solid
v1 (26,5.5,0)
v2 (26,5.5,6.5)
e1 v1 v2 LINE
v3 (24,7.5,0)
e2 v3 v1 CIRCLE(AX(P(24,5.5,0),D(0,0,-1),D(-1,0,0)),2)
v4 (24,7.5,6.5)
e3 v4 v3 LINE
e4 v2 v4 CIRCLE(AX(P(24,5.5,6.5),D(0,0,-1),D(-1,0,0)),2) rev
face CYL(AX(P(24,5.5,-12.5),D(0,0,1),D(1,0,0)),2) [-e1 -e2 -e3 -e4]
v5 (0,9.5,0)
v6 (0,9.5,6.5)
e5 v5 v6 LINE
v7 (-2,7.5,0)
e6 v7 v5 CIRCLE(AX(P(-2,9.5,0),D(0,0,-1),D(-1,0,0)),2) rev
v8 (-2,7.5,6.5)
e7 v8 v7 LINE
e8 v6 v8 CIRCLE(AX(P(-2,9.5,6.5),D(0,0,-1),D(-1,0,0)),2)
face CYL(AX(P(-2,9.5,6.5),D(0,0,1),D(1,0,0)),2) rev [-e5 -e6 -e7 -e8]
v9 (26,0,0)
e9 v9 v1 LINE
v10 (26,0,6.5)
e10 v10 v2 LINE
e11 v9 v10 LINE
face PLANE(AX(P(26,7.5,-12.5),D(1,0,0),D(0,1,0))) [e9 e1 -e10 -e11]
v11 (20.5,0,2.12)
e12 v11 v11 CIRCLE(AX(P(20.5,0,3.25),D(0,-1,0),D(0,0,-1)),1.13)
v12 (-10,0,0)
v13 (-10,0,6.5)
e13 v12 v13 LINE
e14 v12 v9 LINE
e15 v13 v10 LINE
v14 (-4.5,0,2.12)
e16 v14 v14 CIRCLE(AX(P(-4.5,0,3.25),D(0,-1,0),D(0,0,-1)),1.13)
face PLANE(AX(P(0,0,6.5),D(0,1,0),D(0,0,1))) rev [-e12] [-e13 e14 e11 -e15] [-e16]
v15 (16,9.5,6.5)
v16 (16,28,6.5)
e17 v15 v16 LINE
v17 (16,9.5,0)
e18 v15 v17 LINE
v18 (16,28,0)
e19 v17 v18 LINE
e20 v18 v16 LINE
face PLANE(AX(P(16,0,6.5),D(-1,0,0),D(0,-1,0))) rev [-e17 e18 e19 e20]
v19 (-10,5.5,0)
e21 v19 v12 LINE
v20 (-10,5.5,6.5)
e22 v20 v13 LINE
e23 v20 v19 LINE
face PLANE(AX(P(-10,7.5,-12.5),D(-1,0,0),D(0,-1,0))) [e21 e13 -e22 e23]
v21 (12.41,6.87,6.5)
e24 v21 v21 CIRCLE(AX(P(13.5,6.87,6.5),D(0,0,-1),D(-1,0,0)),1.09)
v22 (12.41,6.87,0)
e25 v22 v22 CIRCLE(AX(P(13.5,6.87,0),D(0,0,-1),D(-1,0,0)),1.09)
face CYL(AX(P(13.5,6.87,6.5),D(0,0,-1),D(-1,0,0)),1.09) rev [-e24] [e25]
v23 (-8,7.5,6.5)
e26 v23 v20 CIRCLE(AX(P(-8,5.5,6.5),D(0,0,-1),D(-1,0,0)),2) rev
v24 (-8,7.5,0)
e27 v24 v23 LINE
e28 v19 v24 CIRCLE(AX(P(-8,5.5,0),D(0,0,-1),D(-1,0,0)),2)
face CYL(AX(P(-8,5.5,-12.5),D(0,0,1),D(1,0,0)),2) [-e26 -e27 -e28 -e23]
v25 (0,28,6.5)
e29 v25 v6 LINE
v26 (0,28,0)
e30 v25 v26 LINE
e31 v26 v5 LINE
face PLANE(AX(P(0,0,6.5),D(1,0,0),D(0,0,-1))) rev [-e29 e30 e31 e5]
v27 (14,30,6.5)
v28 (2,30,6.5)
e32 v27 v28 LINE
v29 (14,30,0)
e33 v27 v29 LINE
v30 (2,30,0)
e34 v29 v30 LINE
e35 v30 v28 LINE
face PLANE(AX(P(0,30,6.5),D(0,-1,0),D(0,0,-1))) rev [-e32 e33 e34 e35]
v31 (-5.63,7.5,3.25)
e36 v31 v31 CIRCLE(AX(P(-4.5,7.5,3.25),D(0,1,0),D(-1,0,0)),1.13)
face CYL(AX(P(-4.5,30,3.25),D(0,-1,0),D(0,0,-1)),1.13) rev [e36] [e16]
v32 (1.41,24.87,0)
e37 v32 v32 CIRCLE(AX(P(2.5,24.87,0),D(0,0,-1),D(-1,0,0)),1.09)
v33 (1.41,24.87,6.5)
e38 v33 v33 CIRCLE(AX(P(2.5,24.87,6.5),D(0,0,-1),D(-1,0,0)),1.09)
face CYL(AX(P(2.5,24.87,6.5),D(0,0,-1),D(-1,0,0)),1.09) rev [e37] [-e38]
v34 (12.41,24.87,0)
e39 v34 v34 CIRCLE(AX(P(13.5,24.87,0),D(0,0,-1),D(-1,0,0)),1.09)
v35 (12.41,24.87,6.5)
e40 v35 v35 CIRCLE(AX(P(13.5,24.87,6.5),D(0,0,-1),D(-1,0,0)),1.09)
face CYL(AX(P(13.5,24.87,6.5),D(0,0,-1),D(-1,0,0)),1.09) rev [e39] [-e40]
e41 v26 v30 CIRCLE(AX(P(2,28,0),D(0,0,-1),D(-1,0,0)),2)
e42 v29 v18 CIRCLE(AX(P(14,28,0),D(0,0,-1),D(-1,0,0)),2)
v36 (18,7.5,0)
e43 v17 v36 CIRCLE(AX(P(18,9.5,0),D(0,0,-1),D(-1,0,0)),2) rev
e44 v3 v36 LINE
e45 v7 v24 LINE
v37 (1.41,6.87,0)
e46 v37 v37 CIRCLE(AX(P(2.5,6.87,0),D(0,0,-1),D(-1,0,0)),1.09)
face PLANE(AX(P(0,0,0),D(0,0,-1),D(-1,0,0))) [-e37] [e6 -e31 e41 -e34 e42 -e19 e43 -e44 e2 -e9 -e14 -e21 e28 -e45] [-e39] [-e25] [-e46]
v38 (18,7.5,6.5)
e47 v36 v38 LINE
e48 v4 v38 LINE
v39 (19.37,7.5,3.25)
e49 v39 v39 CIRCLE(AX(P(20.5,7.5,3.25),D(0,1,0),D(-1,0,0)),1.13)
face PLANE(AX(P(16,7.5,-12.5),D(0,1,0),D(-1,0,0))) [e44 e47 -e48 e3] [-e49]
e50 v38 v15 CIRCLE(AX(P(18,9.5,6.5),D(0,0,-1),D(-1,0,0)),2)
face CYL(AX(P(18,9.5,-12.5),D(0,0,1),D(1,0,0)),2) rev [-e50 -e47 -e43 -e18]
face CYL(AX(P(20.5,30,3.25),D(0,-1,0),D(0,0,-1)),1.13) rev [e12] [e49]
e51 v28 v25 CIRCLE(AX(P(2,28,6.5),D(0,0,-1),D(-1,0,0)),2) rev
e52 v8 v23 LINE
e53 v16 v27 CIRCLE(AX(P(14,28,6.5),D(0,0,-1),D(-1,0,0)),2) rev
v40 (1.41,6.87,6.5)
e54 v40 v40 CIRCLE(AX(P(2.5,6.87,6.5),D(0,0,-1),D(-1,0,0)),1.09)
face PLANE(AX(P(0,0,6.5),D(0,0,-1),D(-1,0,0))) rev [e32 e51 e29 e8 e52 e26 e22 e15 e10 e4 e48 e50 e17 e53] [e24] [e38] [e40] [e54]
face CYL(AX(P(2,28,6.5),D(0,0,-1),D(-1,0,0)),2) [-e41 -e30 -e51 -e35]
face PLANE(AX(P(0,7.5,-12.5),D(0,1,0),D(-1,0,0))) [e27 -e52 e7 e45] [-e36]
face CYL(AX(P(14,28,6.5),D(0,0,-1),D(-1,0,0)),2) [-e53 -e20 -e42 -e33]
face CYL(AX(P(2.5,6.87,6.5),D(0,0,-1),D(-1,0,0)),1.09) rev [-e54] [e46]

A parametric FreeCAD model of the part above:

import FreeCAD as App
import Part
import Sketcher

V = App.Vector


def edges_at(feature, points):
    """Names of the edges that pass closest to the given points."""
    edges = feature.Shape.Edges
    near = lambda p: min(range(len(edges)), key=lambda i: edges[i].distToShape(Part.Vertex(*p))[0])
    return sorted({f"Edge{near(p) + 1}" for p in points})


def add_polygon(sketch, points):
    """Adds a closed chain of lines whose ends are joined by coincident constraints."""
    first, n = sketch.GeometryCount, len(points)
    for a, b in zip(points, points[1:] + points[:1]):
        sketch.addGeometry(Part.LineSegment(App.Vector(*a, 0), App.Vector(*b, 0)), False)
    for i in range(n):
        sketch.addConstraint(Sketcher.Constraint("Coincident", first + i, 2, first + (i + 1) % n, 1))

doc = App.newDocument("Part")
body = doc.addObject("PartDesign::Body", "Body")

# Sketch on XY plane
sketch1 = body.newObject("Sketcher::SketchObject", "Sketch")
sketch1.AttachmentSupport = (doc.getObject("XY_Plane"), [""])
sketch1.MapMode = "FlatFace"
add_polygon(sketch1, [(0, 30), (0, 0), (16, 0), (16, 30)])  # lines 0-3
sketch1.addConstraint([
    Sketcher.Constraint("Vertical", 0),
    Sketcher.Constraint("Horizontal", 1),
    Sketcher.Constraint("Vertical", 2),
    Sketcher.Constraint("Horizontal", 3),
    Sketcher.Constraint("Coincident", 0, 2, -1, 1),
    Sketcher.Constraint("DistanceX", 1, 1, 1, 2, 16.0),
    Sketcher.Constraint("DistanceY", 0, 2, 0, 1, 30.0),
])
pad1 = body.newObject("PartDesign::Pad", "Pad")
pad1.Profile = sketch1
pad1.Length = 6.5

# Sketch on XY plane
sketch2 = body.newObject("Sketcher::SketchObject", "Sketch001")
sketch2.AttachmentSupport = (doc.getObject("XY_Plane"), [""])
sketch2.MapMode = "FlatFace"
sketch2.addGeometry([
    Part.Circle(V(13.5, 6.9, 0), V(0, 0, 1), 1.1),
    Part.Circle(V(2.5, 6.9, 0), V(0, 0, 1), 1.1),
    Part.Circle(V(2.5, 24.9, 0), V(0, 0, 1), 1.1),
    Part.Circle(V(13.5, 24.9, 0), V(0, 0, 1), 1.1),
], False)
sketch2.addConstraint([
    Sketcher.Constraint("Equal", 0, 1),
    Sketcher.Constraint("Equal", 1, 2),
    Sketcher.Constraint("Equal", 2, 3),
    Sketcher.Constraint("Horizontal", 0, 3, 1, 3),
    Sketcher.Constraint("Horizontal", 2, 3, 3, 3),
    Sketcher.Constraint("Vertical", 1, 3, 2, 3),
    Sketcher.Constraint("Vertical", 0, 3, 3, 3),
    Sketcher.Constraint("Diameter", 0, 2.18),
    Sketcher.Constraint("DistanceX", 1, 3, 0, 3, 11.0),
    Sketcher.Constraint("DistanceY", 1, 3, 2, 3, 18.0),
    Sketcher.Constraint("DistanceX", -1, 1, 0, 3, 13.5),
    Sketcher.Constraint("DistanceY", -1, 1, 0, 3, 6.87),
])
pocket1 = body.newObject("PartDesign::Pocket", "Pocket")
pocket1.Profile = sketch2
pocket1.Type = "ThroughAll"
pocket1.Reversed = True
doc.recompute()

fillet = body.newObject("PartDesign::Fillet", "Fillet")
fillet.Base = (pocket1, edges_at(pocket1, [(0, 30, 3.25), (16, 30, 3.25)]))
fillet.Radius = 2

# Sketch on XY plane
sketch3 = body.newObject("Sketcher::SketchObject", "Sketch002")
sketch3.AttachmentSupport = (doc.getObject("XY_Plane"), [""])
sketch3.MapMode = "FlatFace"
sketch3.AttachmentOffset = App.Placement(V(0, 0, 6.5), App.Rotation())
add_polygon(sketch3, [(-10, 8), (-10, 0), (0, 0), (0, 8)])  # lines 0-3
add_polygon(sketch3, [(16, 8), (16, 0), (26, 0), (26, 8)])  # lines 4-7
sketch3.addConstraint([
    Sketcher.Constraint("Vertical", 0),
    Sketcher.Constraint("Horizontal", 1),
    Sketcher.Constraint("Vertical", 2),
    Sketcher.Constraint("Horizontal", 3),
    Sketcher.Constraint("Vertical", 4),
    Sketcher.Constraint("Horizontal", 5),
    Sketcher.Constraint("Vertical", 6),
    Sketcher.Constraint("Horizontal", 7),
    Sketcher.Constraint("Coincident", 1, 2, -1, 1),
    Sketcher.Constraint("PointOnObject", 4, 2, -1),
    Sketcher.Constraint("Horizontal", 3, 2, 6, 2),
    Sketcher.Constraint("Equal", 3, 5),
    Sketcher.Constraint("DistanceX", 1, 1, 1, 2, 10.0),
    Sketcher.Constraint("DistanceY", 0, 2, 0, 1, 7.5),
    Sketcher.Constraint("DistanceX", -1, 1, 4, 2, 16.0),
])
pad2 = body.newObject("PartDesign::Pad", "Pad001")
pad2.Profile = sketch3
pad2.Length = 6.5
pad2.Reversed = True
doc.recompute()

fillet2 = body.newObject("PartDesign::Fillet", "Fillet001")
fillet2.Base = (pad2, edges_at(pad2, [(0, 7.5, 3.25), (16, 7.5, 3.25)]))
fillet2.Radius = 2
doc.recompute()

fillet3 = body.newObject("PartDesign::Fillet", "Fillet002")
fillet3.Base = (fillet2, edges_at(fillet2, [(26, 7.5, 3.25)]))
fillet3.Radius = 2
doc.recompute()

fillet4 = body.newObject("PartDesign::Fillet", "Fillet003")
fillet4.Base = (fillet3, edges_at(fillet3, [(-10, 7.5, 3.25)]))
fillet4.Radius = 2

# Sketch on XZ plane
sketch4 = body.newObject("Sketcher::SketchObject", "Sketch003")
sketch4.AttachmentSupport = (doc.getObject("XZ_Plane"), [""])
sketch4.MapMode = "FlatFace"
sketch4.addGeometry([
    Part.Circle(V(20.5, 3.2, 0), V(0, 0, 1), 1.1),
    Part.Circle(V(-4.5, 3.2, 0), V(0, 0, 1), 1.1),
], False)
sketch4.addConstraint([
    Sketcher.Constraint("Equal", 0, 1),
    Sketcher.Constraint("Horizontal", 0, 3, 1, 3),
    Sketcher.Constraint("Diameter", 0, 2.26),
    Sketcher.Constraint("DistanceX", 1, 3, 0, 3, 25.0),
    Sketcher.Constraint("DistanceX", -1, 1, 0, 3, 20.5),
    Sketcher.Constraint("DistanceY", -1, 1, 0, 3, 3.25),
])
pocket2 = body.newObject("PartDesign::Pocket", "Pocket001")
pocket2.Profile = sketch4
pocket2.Type = "ThroughAll"

doc.recompute()
